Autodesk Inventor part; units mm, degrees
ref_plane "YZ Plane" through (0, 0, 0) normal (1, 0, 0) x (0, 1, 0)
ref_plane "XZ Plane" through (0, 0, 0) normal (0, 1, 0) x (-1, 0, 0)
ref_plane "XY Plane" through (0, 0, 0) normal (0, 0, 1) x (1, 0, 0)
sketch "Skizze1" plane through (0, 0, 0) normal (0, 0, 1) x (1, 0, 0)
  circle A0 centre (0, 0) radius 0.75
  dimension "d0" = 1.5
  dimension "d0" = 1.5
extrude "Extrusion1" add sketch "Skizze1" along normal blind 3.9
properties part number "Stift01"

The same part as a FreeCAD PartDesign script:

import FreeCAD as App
import Part
import Sketcher
from FreeCAD import Vector

doc = App.newDocument("Part")
body = doc.addObject("PartDesign::Body", "Body")

sketch1 = body.newObject("Sketcher::SketchObject", "Sketch")
sketch1.AttachmentSupport = (doc.getObject("XY_Plane"), [""])
sketch1.MapMode = "FlatFace"
sketch1.addGeometry(Part.Circle(Vector(0, 0, 0), Vector(0, 0, 1), 0.8), False)
sketch1.addConstraint(Sketcher.Constraint("Coincident", 0, 3, -1, 1))
sketch1.addConstraint(Sketcher.Constraint("Diameter", 0, 1.5))
pad1 = body.newObject("PartDesign::Pad", "Pad")
pad1.Profile = sketch1
pad1.Length = 3.9

doc.recompute()
